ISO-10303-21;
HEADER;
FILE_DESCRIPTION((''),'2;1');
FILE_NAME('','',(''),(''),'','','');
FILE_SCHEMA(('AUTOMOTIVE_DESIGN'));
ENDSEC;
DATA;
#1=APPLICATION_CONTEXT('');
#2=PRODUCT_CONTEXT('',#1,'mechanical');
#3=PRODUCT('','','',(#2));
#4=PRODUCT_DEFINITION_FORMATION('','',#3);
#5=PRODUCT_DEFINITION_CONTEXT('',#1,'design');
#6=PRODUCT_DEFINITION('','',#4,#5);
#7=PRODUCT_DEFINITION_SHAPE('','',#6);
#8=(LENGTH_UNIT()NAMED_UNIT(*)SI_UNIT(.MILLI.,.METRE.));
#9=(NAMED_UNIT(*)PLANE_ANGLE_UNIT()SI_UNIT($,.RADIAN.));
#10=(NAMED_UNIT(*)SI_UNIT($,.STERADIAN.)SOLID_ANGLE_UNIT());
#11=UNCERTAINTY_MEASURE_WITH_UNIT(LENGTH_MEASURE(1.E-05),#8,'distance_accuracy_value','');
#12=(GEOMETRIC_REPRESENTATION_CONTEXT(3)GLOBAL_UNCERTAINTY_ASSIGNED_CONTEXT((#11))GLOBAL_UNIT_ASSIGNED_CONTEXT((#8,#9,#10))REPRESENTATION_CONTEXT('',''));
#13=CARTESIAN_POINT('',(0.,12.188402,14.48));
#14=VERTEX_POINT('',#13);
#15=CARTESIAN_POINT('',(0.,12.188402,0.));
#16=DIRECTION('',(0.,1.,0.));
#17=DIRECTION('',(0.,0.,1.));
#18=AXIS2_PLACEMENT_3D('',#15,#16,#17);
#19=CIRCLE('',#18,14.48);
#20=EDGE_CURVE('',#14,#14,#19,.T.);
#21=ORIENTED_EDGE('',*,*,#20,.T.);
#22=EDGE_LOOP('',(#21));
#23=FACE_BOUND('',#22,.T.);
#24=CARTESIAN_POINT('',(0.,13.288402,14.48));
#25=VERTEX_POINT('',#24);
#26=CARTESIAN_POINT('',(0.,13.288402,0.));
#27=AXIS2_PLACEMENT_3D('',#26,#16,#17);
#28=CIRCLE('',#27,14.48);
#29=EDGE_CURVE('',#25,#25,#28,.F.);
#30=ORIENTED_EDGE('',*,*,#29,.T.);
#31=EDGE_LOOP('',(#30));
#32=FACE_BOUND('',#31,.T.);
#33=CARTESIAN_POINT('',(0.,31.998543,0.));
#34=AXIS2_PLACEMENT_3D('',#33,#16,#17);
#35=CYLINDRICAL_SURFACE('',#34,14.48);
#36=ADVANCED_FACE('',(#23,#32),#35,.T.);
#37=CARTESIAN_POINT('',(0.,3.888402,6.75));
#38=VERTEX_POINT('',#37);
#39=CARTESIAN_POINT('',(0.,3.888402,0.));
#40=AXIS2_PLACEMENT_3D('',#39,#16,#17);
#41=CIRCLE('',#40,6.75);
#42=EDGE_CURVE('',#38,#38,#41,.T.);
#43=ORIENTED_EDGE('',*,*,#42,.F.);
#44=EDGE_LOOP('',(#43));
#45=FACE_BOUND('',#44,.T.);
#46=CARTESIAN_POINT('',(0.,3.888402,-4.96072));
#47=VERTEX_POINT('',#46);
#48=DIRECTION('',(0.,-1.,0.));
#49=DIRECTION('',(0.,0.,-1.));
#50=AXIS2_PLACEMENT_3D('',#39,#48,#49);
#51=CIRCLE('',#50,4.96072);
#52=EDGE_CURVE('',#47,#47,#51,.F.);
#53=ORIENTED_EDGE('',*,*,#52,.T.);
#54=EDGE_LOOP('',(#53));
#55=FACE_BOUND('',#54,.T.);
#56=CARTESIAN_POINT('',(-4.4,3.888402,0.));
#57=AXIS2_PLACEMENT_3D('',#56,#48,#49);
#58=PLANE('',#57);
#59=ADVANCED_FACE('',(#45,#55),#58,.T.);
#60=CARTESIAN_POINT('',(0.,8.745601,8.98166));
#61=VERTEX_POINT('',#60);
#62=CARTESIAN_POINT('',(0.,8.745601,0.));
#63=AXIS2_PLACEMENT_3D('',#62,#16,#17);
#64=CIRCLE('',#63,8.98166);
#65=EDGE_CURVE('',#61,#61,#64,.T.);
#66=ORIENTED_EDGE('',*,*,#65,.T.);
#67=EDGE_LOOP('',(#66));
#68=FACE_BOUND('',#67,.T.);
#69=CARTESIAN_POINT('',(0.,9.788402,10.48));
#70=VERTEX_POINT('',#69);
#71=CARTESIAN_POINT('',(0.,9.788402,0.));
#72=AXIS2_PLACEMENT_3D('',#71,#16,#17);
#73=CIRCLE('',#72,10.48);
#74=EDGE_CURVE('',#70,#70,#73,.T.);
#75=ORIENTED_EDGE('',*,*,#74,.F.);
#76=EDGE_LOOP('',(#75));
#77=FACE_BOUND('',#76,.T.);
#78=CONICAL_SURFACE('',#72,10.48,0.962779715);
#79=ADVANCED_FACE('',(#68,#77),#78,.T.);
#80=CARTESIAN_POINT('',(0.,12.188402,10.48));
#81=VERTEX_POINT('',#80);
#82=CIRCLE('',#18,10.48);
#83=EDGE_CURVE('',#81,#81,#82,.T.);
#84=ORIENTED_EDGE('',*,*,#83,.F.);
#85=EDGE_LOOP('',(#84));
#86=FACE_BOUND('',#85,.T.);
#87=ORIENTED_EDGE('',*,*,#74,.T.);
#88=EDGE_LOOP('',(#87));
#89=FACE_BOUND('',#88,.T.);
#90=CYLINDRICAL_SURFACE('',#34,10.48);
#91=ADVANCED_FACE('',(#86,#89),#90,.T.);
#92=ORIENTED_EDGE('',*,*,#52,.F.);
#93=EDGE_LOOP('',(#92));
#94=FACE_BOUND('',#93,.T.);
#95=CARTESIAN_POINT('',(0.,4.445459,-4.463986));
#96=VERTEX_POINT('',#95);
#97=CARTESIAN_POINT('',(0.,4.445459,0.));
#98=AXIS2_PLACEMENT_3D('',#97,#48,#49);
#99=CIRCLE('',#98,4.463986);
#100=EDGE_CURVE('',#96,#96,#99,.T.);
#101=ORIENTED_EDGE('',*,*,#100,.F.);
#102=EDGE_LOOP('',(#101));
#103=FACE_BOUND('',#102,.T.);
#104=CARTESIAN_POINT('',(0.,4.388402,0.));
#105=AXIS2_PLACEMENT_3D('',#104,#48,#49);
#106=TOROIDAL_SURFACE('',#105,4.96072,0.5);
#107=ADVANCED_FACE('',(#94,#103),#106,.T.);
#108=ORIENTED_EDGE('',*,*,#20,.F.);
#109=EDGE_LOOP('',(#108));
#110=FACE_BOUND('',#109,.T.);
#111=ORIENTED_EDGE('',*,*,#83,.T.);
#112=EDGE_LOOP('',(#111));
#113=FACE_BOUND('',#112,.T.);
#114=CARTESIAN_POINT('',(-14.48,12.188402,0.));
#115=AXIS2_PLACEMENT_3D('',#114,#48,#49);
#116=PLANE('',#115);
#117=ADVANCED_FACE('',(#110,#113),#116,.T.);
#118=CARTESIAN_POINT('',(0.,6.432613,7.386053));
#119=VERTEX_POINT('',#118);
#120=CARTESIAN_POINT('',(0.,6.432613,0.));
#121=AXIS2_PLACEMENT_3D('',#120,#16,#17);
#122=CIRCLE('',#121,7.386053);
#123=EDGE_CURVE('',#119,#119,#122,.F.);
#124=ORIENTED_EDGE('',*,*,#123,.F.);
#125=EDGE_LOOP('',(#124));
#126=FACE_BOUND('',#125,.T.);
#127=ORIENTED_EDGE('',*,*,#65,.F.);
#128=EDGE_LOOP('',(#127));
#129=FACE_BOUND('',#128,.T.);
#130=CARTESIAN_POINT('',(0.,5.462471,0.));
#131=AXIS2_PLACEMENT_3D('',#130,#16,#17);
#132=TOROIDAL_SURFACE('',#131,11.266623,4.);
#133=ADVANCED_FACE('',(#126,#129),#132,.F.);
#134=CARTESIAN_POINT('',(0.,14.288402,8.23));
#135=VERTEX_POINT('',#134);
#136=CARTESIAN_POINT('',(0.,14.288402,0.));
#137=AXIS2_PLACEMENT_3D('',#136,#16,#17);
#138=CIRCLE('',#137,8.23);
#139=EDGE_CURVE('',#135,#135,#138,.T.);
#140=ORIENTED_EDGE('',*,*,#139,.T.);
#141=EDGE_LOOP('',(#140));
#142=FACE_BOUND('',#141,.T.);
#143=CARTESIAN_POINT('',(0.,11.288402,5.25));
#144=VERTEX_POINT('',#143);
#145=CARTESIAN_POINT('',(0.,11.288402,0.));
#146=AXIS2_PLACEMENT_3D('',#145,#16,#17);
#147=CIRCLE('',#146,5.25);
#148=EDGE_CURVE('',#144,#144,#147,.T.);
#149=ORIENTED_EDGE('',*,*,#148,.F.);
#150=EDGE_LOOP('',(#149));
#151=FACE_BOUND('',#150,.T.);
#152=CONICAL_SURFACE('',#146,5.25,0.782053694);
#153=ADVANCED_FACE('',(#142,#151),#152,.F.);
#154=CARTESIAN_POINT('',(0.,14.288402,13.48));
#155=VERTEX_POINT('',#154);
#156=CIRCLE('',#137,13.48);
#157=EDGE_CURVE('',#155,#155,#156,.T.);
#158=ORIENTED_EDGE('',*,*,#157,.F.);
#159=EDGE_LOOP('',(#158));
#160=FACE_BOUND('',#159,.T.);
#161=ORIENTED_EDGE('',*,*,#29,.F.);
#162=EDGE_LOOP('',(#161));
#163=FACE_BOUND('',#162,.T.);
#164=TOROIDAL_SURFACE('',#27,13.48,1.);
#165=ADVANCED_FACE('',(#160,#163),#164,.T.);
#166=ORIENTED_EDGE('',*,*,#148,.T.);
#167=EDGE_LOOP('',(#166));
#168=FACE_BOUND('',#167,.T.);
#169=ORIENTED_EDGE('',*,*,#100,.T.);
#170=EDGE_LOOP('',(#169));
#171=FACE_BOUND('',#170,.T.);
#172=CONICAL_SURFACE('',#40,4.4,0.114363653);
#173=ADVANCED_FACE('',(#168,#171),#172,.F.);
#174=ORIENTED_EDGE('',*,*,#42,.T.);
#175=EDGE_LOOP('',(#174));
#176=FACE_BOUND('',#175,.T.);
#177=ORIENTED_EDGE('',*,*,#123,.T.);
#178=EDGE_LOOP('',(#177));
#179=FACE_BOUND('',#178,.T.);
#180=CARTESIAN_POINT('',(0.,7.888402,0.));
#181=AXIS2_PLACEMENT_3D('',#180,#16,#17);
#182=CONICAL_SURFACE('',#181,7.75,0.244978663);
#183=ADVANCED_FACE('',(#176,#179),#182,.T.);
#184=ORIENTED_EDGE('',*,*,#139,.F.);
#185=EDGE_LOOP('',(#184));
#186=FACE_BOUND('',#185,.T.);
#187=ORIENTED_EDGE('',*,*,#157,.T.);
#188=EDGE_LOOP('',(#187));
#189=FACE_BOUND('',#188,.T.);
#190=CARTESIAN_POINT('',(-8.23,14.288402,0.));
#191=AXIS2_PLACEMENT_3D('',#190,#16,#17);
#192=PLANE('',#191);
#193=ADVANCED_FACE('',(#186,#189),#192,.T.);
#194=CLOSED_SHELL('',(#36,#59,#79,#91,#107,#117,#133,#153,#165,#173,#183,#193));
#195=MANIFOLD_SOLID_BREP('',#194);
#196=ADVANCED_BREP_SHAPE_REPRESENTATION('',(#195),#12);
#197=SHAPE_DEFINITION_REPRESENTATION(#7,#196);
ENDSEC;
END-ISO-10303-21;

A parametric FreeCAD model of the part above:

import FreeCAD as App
import Part
import Sketcher


def edges_at(feature, points):
    """Names of the edges that pass closest to the given points."""
    edges = feature.Shape.Edges
    near = lambda p: min(range(len(edges)), key=lambda i: edges[i].distToShape(Part.Vertex(*p))[0])
    return sorted({f"Edge{near(p) + 1}" for p in points})


def add_polygon(sketch, points):
    """Adds a closed chain of lines whose ends are joined by coincident constraints."""
    first, n = sketch.GeometryCount, len(points)
    for a, b in zip(points, points[1:] + points[:1]):
        sketch.addGeometry(Part.LineSegment(App.Vector(*a, 0), App.Vector(*b, 0)), False)
    for i in range(n):
        sketch.addConstraint(Sketcher.Constraint("Coincident", first + i, 2, first + (i + 1) % n, 1))

doc = App.newDocument("Part")
body = doc.addObject("PartDesign::Body", "Body")

sketch1 = body.newObject("Sketcher::SketchObject", "Sketch")
sketch1.AttachmentSupport = (doc.getObject("XY_Plane"), [""])
sketch1.MapMode = "FlatFace"
add_polygon(sketch1, [(-8.2, 14.3), (-14.5, 14.3), (-14.5, 12.2), (-10.5, 12.2), (-10.5, 9.8), (-7.8, 7.9), (-6.8, 3.9), (-4.4, 3.9), (-5.2, 11.3)])
sketch1.addConstraint([
    Sketcher.Constraint("Horizontal", 0),
    Sketcher.Constraint("Vertical", 1),
    Sketcher.Constraint("Horizontal", 2),
    Sketcher.Constraint("Vertical", 3),
    Sketcher.Constraint("Horizontal", 6),
    Sketcher.Constraint("DistanceX", 2, 1, 2, 2, 4.0),
    Sketcher.Constraint("DistanceY", 1, 2, 1, 1, 2.1),
    Sketcher.Constraint("DistanceY", 3, 2, 3, 1, 2.4),
    Sketcher.Constraint("DistanceX", 4, 2, 5, 2, 1.0),
    Sketcher.Constraint("DistanceY", 5, 2, 4, 2, 4.0),
    Sketcher.Constraint("DistanceY", 7, 2, 8, 2, 3.0),
    Sketcher.Constraint("DistanceX", 0, 2, 0, 1, 6.25),
    Sketcher.Constraint("DistanceX", 6, 1, 6, 2, 2.35),
    Sketcher.Constraint("DistanceX", 6, 2, -1, 1, 4.4),
    Sketcher.Constraint("DistanceY", 4, 2, 3, 2, 1.9),
    Sketcher.Constraint("DistanceX", 4, 2, 7, 2, 2.5),
    Sketcher.Constraint("DistanceX", 0, 2, -1, 1, 14.48),
    Sketcher.Constraint("DistanceY", -1, 1, 0, 2, 14.288402),
])
revolution = body.newObject("PartDesign::Revolution", "Revolution")
revolution.Profile = sketch1
revolution.ReferenceAxis = (sketch1, ["V_Axis"])
revolution.Angle = 360
doc.recompute()

fillet = body.newObject("PartDesign::Fillet", "Fillet")
fillet.Base = (revolution, edges_at(revolution, [(0, 7.888, -7.75)]))
fillet.Radius = 4
doc.recompute()

fillet2 = body.newObject("PartDesign::Fillet", "Fillet001")
fillet2.Base = (fillet, edges_at(fillet, [(0, 3.888, -4.4)]))
fillet2.Radius = 0.5
doc.recompute()

fillet3 = body.newObject("PartDesign::Fillet", "Fillet002")
fillet3.Base = (fillet2, edges_at(fillet2, [(0, 14.288, -14.48)]))
fillet3.Radius = 1

doc.recompute()
